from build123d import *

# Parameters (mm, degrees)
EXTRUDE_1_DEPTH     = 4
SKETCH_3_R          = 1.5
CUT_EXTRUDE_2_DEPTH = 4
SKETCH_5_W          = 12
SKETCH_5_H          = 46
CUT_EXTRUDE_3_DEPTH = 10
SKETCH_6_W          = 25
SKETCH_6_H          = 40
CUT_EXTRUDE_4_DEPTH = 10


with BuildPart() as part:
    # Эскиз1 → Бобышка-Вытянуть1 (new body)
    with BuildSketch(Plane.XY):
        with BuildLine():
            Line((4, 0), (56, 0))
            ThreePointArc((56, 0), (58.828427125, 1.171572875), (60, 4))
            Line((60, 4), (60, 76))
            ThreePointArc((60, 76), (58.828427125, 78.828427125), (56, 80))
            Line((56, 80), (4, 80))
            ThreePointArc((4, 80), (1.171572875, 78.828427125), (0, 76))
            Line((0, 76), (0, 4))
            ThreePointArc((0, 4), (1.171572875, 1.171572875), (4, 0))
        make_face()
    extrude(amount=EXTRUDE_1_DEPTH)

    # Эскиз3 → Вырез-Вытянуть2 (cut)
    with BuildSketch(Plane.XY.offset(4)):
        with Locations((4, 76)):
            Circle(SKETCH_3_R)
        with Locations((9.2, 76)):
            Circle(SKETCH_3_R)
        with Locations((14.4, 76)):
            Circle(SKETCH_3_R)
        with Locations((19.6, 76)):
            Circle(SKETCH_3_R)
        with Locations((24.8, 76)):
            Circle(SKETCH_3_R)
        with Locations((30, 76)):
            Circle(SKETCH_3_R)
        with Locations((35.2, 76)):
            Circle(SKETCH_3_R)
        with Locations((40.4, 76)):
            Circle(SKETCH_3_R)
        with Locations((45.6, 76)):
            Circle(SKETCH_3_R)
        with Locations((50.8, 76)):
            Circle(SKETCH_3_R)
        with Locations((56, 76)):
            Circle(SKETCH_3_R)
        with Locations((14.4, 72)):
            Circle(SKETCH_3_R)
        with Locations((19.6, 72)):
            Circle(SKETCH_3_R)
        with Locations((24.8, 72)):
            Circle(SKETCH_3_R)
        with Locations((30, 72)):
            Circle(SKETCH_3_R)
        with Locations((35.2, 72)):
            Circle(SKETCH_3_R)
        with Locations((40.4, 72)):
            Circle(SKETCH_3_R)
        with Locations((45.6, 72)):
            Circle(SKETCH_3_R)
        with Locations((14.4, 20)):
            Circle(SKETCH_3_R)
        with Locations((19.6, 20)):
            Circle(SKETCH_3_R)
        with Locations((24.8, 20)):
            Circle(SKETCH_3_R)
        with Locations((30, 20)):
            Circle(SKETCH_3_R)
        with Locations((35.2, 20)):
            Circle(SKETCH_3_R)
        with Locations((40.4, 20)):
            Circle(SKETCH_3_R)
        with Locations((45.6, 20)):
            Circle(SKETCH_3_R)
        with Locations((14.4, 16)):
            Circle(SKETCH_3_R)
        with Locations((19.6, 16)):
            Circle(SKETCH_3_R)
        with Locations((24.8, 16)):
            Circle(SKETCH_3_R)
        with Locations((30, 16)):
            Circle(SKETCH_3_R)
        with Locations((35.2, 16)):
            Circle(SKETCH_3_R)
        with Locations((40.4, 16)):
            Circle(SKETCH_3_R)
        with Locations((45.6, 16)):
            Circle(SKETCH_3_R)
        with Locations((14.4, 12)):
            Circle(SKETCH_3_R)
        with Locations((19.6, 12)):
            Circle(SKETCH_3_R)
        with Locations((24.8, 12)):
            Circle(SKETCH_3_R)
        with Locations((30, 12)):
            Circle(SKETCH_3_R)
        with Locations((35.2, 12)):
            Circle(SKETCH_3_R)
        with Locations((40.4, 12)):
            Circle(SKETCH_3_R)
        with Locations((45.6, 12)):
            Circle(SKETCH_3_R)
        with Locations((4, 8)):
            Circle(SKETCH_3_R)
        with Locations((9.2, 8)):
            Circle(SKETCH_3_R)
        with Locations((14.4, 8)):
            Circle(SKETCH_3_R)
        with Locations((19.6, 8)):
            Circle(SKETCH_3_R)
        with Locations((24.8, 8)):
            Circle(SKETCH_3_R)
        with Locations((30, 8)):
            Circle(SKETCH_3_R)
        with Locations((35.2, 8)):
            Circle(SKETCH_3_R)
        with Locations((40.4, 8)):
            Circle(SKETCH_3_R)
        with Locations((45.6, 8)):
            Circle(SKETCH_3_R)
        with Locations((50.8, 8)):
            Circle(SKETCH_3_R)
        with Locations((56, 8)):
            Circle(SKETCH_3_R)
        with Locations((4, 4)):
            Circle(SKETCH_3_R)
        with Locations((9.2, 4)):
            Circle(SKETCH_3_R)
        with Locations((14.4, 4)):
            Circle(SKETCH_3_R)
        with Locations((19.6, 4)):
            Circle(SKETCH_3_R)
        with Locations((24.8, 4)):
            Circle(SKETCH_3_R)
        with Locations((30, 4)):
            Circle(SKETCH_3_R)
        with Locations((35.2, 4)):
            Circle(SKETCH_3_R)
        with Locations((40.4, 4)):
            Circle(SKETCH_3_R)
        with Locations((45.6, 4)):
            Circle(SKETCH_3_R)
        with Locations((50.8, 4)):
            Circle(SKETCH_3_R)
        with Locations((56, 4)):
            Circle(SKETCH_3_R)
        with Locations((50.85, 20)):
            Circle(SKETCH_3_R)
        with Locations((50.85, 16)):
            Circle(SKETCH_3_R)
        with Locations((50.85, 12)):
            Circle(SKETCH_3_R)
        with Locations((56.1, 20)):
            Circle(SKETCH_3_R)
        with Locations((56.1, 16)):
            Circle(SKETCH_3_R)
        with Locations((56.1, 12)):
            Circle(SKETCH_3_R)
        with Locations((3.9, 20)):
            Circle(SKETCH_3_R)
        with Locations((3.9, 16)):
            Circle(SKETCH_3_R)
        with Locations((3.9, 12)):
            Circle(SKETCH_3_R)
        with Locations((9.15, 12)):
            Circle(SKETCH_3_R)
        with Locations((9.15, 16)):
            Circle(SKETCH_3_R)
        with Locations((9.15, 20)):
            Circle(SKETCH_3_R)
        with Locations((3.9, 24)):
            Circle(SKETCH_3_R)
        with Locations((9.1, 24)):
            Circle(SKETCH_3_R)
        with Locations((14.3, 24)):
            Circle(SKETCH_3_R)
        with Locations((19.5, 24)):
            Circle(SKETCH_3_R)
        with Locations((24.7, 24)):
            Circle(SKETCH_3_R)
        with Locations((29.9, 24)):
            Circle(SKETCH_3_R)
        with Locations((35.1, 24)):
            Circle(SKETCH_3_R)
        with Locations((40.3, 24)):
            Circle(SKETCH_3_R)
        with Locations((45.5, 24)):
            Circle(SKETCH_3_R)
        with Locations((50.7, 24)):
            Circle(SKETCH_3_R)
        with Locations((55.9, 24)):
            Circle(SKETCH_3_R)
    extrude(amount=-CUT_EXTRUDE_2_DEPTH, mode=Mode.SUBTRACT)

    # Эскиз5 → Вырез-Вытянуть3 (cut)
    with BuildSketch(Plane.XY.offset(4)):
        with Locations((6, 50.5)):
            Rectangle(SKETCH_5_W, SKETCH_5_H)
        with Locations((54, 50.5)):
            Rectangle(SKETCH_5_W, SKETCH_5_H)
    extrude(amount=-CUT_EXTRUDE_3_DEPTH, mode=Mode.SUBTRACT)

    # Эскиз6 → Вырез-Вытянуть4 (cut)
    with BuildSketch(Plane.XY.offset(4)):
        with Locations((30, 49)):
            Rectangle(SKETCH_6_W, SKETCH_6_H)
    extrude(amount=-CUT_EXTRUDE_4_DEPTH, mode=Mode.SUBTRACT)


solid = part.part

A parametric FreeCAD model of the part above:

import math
import FreeCAD as App
import Part
import Sketcher
Q = App.Units.Quantity

doc = App.newDocument("Part")
body = doc.addObject("PartDesign::Body", "Body")

sketch1 = body.newObject("Sketcher::SketchObject", "Sketch")
sketch1.AttachmentSupport = (doc.getObject("XY_Plane"), [""])
sketch1.MapMode = "FlatFace"
sketch1.addGeometry([
    Part.LineSegment(App.Vector(4, 0, 0), App.Vector(56, 0, 0)),
    Part.ArcOfCircle(Part.Circle(App.Vector(56, 4, 0), App.Vector(0, 0, 1), 4), math.radians(-90), math.radians(0)),
    Part.LineSegment(App.Vector(60, 4, 0), App.Vector(60, 76, 0)),
    Part.ArcOfCircle(Part.Circle(App.Vector(56, 76, 0), App.Vector(0, 0, 1), 4), math.radians(0), math.radians(90)),
    Part.LineSegment(App.Vector(56, 80, 0), App.Vector(4, 80, 0)),
    Part.ArcOfCircle(Part.Circle(App.Vector(4, 76, 0), App.Vector(0, 0, 1), 4), math.radians(90), math.radians(180)),
    Part.LineSegment(App.Vector(0, 76, 0), App.Vector(0, 4, 0)),
    Part.ArcOfCircle(Part.Circle(App.Vector(4, 4, 0), App.Vector(0, 0, 1), 4), math.radians(180), math.radians(270)),
], False)
sketch1.addConstraint([
    Sketcher.Constraint("Tangent", 0, 2, 1, 1),
    Sketcher.Constraint("Tangent", 1, 2, 2, 1),
    Sketcher.Constraint("Tangent", 2, 2, 3, 1),
    Sketcher.Constraint("Tangent", 3, 2, 4, 1),
    Sketcher.Constraint("Tangent", 4, 2, 5, 1),
    Sketcher.Constraint("Tangent", 5, 2, 6, 1),
    Sketcher.Constraint("Tangent", 6, 2, 7, 1),
    Sketcher.Constraint("Tangent", 7, 2, 0, 1),
    Sketcher.Constraint("Horizontal", 0),
    Sketcher.Constraint("Vertical", 2),
    Sketcher.Constraint("Horizontal", 4),
    Sketcher.Constraint("Vertical", 6),
    Sketcher.Constraint("Equal", 1, 3),
    Sketcher.Constraint("Equal", 3, 5),
    Sketcher.Constraint("Equal", 5, 7),
    Sketcher.Constraint("PointOnObject", 0, 2, -1),
    Sketcher.Constraint("PointOnObject", 5, 2, -2),
    Sketcher.Constraint("Radius", 1, Q("4 mm")),
    Sketcher.Constraint("DistanceX", 0, 1, 0, 2, Q("52 mm")),
    Sketcher.Constraint("DistanceY", 2, 1, 2, 2, Q("72 mm")),
])
pad1 = body.newObject("PartDesign::Pad", "Pad")
pad1.Profile = sketch1
pad1.Length = 4

sketch2 = body.newObject("Sketcher::SketchObject", "Sketch001")
sketch2.AttachmentSupport = (doc.getObject("XY_Plane"), [""])
sketch2.MapMode = "FlatFace"
sketch2.AttachmentOffset = App.Placement(App.Vector(0, 0, 4), App.Rotation())
sketch2.addGeometry([
    Part.Circle(App.Vector(4, 76, 0), App.Vector(0, 0, 1), 1.5),
    Part.Circle(App.Vector(9.2, 76, 0), App.Vector(0, 0, 1), 1.5),
    Part.Circle(App.Vector(14.4, 76, 0), App.Vector(0, 0, 1), 1.5),
    Part.Circle(App.Vector(19.6, 76, 0), App.Vector(0, 0, 1), 1.5),
    Part.Circle(App.Vector(24.8, 76, 0), App.Vector(0, 0, 1), 1.5),
    Part.Circle(App.Vector(30, 76, 0), App.Vector(0, 0, 1), 1.5),
    Part.Circle(App.Vector(35.2, 76, 0), App.Vector(0, 0, 1), 1.5),
    Part.Circle(App.Vector(40.4, 76, 0), App.Vector(0, 0, 1), 1.5),
    Part.Circle(App.Vector(45.6, 76, 0), App.Vector(0, 0, 1), 1.5),
    Part.Circle(App.Vector(50.8, 76, 0), App.Vector(0, 0, 1), 1.5),
    Part.Circle(App.Vector(56, 76, 0), App.Vector(0, 0, 1), 1.5),
    Part.Circle(App.Vector(14.4, 72, 0), App.Vector(0, 0, 1), 1.5),
    Part.Circle(App.Vector(19.6, 72, 0), App.Vector(0, 0, 1), 1.5),
    Part.Circle(App.Vector(24.8, 72, 0), App.Vector(0, 0, 1), 1.5),
    Part.Circle(App.Vector(30, 72, 0), App.Vector(0, 0, 1), 1.5),
    Part.Circle(App.Vector(35.2, 72, 0), App.Vector(0, 0, 1), 1.5),
    Part.Circle(App.Vector(40.4, 72, 0), App.Vector(0, 0, 1), 1.5),
    Part.Circle(App.Vector(45.6, 72, 0), App.Vector(0, 0, 1), 1.5),
    Part.Circle(App.Vector(14.4, 20, 0), App.Vector(0, 0, 1), 1.5),
    Part.Circle(App.Vector(19.6, 20, 0), App.Vector(0, 0, 1), 1.5),
    Part.Circle(App.Vector(24.8, 20, 0), App.Vector(0, 0, 1), 1.5),
    Part.Circle(App.Vector(30, 20, 0), App.Vector(0, 0, 1), 1.5),
    Part.Circle(App.Vector(35.2, 20, 0), App.Vector(0, 0, 1), 1.5),
    Part.Circle(App.Vector(40.4, 20, 0), App.Vector(0, 0, 1), 1.5),
    Part.Circle(App.Vector(45.6, 20, 0), App.Vector(0, 0, 1), 1.5),
    Part.Circle(App.Vector(14.4, 16, 0), App.Vector(0, 0, 1), 1.5),
    Part.Circle(App.Vector(19.6, 16, 0), App.Vector(0, 0, 1), 1.5),
    Part.Circle(App.Vector(24.8, 16, 0), App.Vector(0, 0, 1), 1.5),
    Part.Circle(App.Vector(30, 16, 0), App.Vector(0, 0, 1), 1.5),
    Part.Circle(App.Vector(35.2, 16, 0), App.Vector(0, 0, 1), 1.5),
    Part.Circle(App.Vector(40.4, 16, 0), App.Vector(0, 0, 1), 1.5),
    Part.Circle(App.Vector(45.6, 16, 0), App.Vector(0, 0, 1), 1.5),
    Part.Circle(App.Vector(14.4, 12, 0), App.Vector(0, 0, 1), 1.5),
    Part.Circle(App.Vector(19.6, 12, 0), App.Vector(0, 0, 1), 1.5),
    Part.Circle(App.Vector(24.8, 12, 0), App.Vector(0, 0, 1), 1.5),
    Part.Circle(App.Vector(30, 12, 0), App.Vector(0, 0, 1), 1.5),
    Part.Circle(App.Vector(35.2, 12, 0), App.Vector(0, 0, 1), 1.5),
    Part.Circle(App.Vector(40.4, 12, 0), App.Vector(0, 0, 1), 1.5),
    Part.Circle(App.Vector(45.6, 12, 0), App.Vector(0, 0, 1), 1.5),
    Part.Circle(App.Vector(4, 8, 0), App.Vector(0, 0, 1), 1.5),
    Part.Circle(App.Vector(9.2, 8, 0), App.Vector(0, 0, 1), 1.5),
    Part.Circle(App.Vector(14.4, 8, 0), App.Vector(0, 0, 1), 1.5),
    Part.Circle(App.Vector(19.6, 8, 0), App.Vector(0, 0, 1), 1.5),
    Part.Circle(App.Vector(24.8, 8, 0), App.Vector(0, 0, 1), 1.5),
    Part.Circle(App.Vector(30, 8, 0), App.Vector(0, 0, 1), 1.5),
    Part.Circle(App.Vector(35.2, 8, 0), App.Vector(0, 0, 1), 1.5),
    Part.Circle(App.Vector(40.4, 8, 0), App.Vector(0, 0, 1), 1.5),
    Part.Circle(App.Vector(45.6, 8, 0), App.Vector(0, 0, 1), 1.5),
    Part.Circle(App.Vector(50.8, 8, 0), App.Vector(0, 0, 1), 1.5),
    Part.Circle(App.Vector(56, 8, 0), App.Vector(0, 0, 1), 1.5),
    Part.Circle(App.Vector(4, 4, 0), App.Vector(0, 0, 1), 1.5),
    Part.Circle(App.Vector(9.2, 4, 0), App.Vector(0, 0, 1), 1.5),
    Part.Circle(App.Vector(14.4, 4, 0), App.Vector(0, 0, 1), 1.5),
    Part.Circle(App.Vector(19.6, 4, 0), App.Vector(0, 0, 1), 1.5),
    Part.Circle(App.Vector(24.8, 4, 0), App.Vector(0, 0, 1), 1.5),
    Part.Circle(App.Vector(30, 4, 0), App.Vector(0, 0, 1), 1.5),
    Part.Circle(App.Vector(35.2, 4, 0), App.Vector(0, 0, 1), 1.5),
    Part.Circle(App.Vector(40.4, 4, 0), App.Vector(0, 0, 1), 1.5),
    Part.Circle(App.Vector(45.6, 4, 0), App.Vector(0, 0, 1), 1.5),
    Part.Circle(App.Vector(50.8, 4, 0), App.Vector(0, 0, 1), 1.5),
    Part.Circle(App.Vector(56, 4, 0), App.Vector(0, 0, 1), 1.5),
    Part.Circle(App.Vector(50.9, 20, 0), App.Vector(0, 0, 1), 1.5),
    Part.Circle(App.Vector(50.9, 16, 0), App.Vector(0, 0, 1), 1.5),
    Part.Circle(App.Vector(50.9, 12, 0), App.Vector(0, 0, 1), 1.5),
    Part.Circle(App.Vector(56.1, 20, 0), App.Vector(0, 0, 1), 1.5),
    Part.Circle(App.Vector(56.1, 16, 0), App.Vector(0, 0, 1), 1.5),
    Part.Circle(App.Vector(56.1, 12, 0), App.Vector(0, 0, 1), 1.5),
    Part.Circle(App.Vector(3.9, 20, 0), App.Vector(0, 0, 1), 1.5),
    Part.Circle(App.Vector(3.9, 16, 0), App.Vector(0, 0, 1), 1.5),
    Part.Circle(App.Vector(3.9, 12, 0), App.Vector(0, 0, 1), 1.5),
    Part.Circle(App.Vector(9.2, 12, 0), App.Vector(0, 0, 1), 1.5),
    Part.Circle(App.Vector(9.2, 16, 0), App.Vector(0, 0, 1), 1.5),
    Part.Circle(App.Vector(9.2, 20, 0), App.Vector(0, 0, 1), 1.5),
    Part.Circle(App.Vector(3.9, 24, 0), App.Vector(0, 0, 1), 1.5),
    Part.Circle(App.Vector(9.1, 24, 0), App.Vector(0, 0, 1), 1.5),
    Part.Circle(App.Vector(14.3, 24, 0), App.Vector(0, 0, 1), 1.5),
    Part.Circle(App.Vector(19.5, 24, 0), App.Vector(0, 0, 1), 1.5),
    Part.Circle(App.Vector(24.7, 24, 0), App.Vector(0, 0, 1), 1.5),
    Part.Circle(App.Vector(29.9, 24, 0), App.Vector(0, 0, 1), 1.5),
    Part.Circle(App.Vector(35.1, 24, 0), App.Vector(0, 0, 1), 1.5),
    Part.Circle(App.Vector(40.3, 24, 0), App.Vector(0, 0, 1), 1.5),
    Part.Circle(App.Vector(45.5, 24, 0), App.Vector(0, 0, 1), 1.5),
    Part.Circle(App.Vector(50.7, 24, 0), App.Vector(0, 0, 1), 1.5),
    Part.Circle(App.Vector(55.9, 24, 0), App.Vector(0, 0, 1), 1.5),
], False)
sketch2.addConstraint([
    Sketcher.Constraint("Equal", 0, 1),
    Sketcher.Constraint("Equal", 1, 2),
    Sketcher.Constraint("Equal", 2, 3),
    Sketcher.Constraint("Equal", 3, 4),
    Sketcher.Constraint("Equal", 4, 5),
    Sketcher.Constraint("Equal", 5, 6),
    Sketcher.Constraint("Equal", 6, 7),
    Sketcher.Constraint("Equal", 7, 8),
    Sketcher.Constraint("Equal", 8, 9),
    Sketcher.Constraint("Equal", 9, 10),
    Sketcher.Constraint("Equal", 10, 11),
    Sketcher.Constraint("Equal", 11, 12),
    Sketcher.Constraint("Equal", 12, 13),
    Sketcher.Constraint("Equal", 13, 14),
    Sketcher.Constraint("Equal", 14, 15),
    Sketcher.Constraint("Equal", 15, 16),
    Sketcher.Constraint("Equal", 16, 17),
    Sketcher.Constraint("Equal", 17, 18),
    Sketcher.Constraint("Equal", 18, 19),
    Sketcher.Constraint("Equal", 19, 20),
    Sketcher.Constraint("Equal", 20, 21),
    Sketcher.Constraint("Equal", 21, 22),
    Sketcher.Constraint("Equal", 22, 23),
    Sketcher.Constraint("Equal", 23, 24),
    Sketcher.Constraint("Equal", 24, 25),
    Sketcher.Constraint("Equal", 25, 26),
    Sketcher.Constraint("Equal", 26, 27),
    Sketcher.Constraint("Equal", 27, 28),
    Sketcher.Constraint("Equal", 28, 29),
    Sketcher.Constraint("Equal", 29, 30),
    Sketcher.Constraint("Equal", 30, 31),
    Sketcher.Constraint("Equal", 31, 32),
    Sketcher.Constraint("Equal", 32, 33),
    Sketcher.Constraint("Equal", 33, 34),
    Sketcher.Constraint("Equal", 34, 35),
    Sketcher.Constraint("Equal", 35, 36),
    Sketcher.Constraint("Equal", 36, 37),
    Sketcher.Constraint("Equal", 37, 38),
    Sketcher.Constraint("Equal", 38, 39),
    Sketcher.Constraint("Equal", 39, 40),
    Sketcher.Constraint("Equal", 40, 41),
    Sketcher.Constraint("Equal", 41, 42),
    Sketcher.Constraint("Equal", 42, 43),
    Sketcher.Constraint("Equal", 43, 44),
    Sketcher.Constraint("Equal", 44, 45),
    Sketcher.Constraint("Equal", 45, 46),
    Sketcher.Constraint("Equal", 46, 47),
    Sketcher.Constraint("Equal", 47, 48),
    Sketcher.Constraint("Equal", 48, 49),
    Sketcher.Constraint("Equal", 49, 50),
    Sketcher.Constraint("Equal", 50, 51),
    Sketcher.Constraint("Equal", 51, 52),
    Sketcher.Constraint("Equal", 52, 53),
    Sketcher.Constraint("Equal", 53, 54),
    Sketcher.Constraint("Equal", 54, 55),
    Sketcher.Constraint("Equal", 55, 56),
    Sketcher.Constraint("Equal", 56, 57),
    Sketcher.Constraint("Equal", 57, 58),
    Sketcher.Constraint("Equal", 58, 59),
    Sketcher.Constraint("Equal", 59, 60),
    Sketcher.Constraint("Equal", 60, 61),
    Sketcher.Constraint("Equal", 61, 62),
    Sketcher.Constraint("Equal", 62, 63),
    Sketcher.Constraint("Equal", 63, 64),
    Sketcher.Constraint("Equal", 64, 65),
    Sketcher.Constraint("Equal", 65, 66),
    Sketcher.Constraint("Equal", 66, 67),
    Sketcher.Constraint("Equal", 67, 68),
    Sketcher.Constraint("Equal", 68, 69),
    Sketcher.Constraint("Equal", 69, 70),
    Sketcher.Constraint("Equal", 70, 71),
    Sketcher.Constraint("Equal", 71, 72),
    Sketcher.Constraint("Equal", 72, 73),
    Sketcher.Constraint("Equal", 73, 74),
    Sketcher.Constraint("Equal", 74, 75),
    Sketcher.Constraint("Equal", 75, 76),
    Sketcher.Constraint("Equal", 76, 77),
    Sketcher.Constraint("Equal", 77, 78),
    Sketcher.Constraint("Equal", 78, 79),
    Sketcher.Constraint("Equal", 79, 80),
    Sketcher.Constraint("Equal", 80, 81),
    Sketcher.Constraint("Equal", 81, 82),
    Sketcher.Constraint("Equal", 82, 83),
    Sketcher.Constraint("Horizontal", 0, 3, 1, 3),
    Sketcher.Constraint("Horizontal", 1, 3, 2, 3),
    Sketcher.Constraint("Horizontal", 2, 3, 3, 3),
    Sketcher.Constraint("Horizontal", 3, 3, 4, 3),
    Sketcher.Constraint("Horizontal", 4, 3, 5, 3),
    Sketcher.Constraint("Horizontal", 5, 3, 6, 3),
    Sketcher.Constraint("Horizontal", 6, 3, 7, 3),
    Sketcher.Constraint("Horizontal", 7, 3, 8, 3),
    Sketcher.Constraint("Horizontal", 8, 3, 9, 3),
    Sketcher.Constraint("Horizontal", 9, 3, 10, 3),
    Sketcher.Constraint("Horizontal", 11, 3, 12, 3),
    Sketcher.Constraint("Horizontal", 12, 3, 13, 3),
    Sketcher.Constraint("Horizontal", 13, 3, 14, 3),
    Sketcher.Constraint("Horizontal", 14, 3, 15, 3),
    Sketcher.Constraint("Horizontal", 15, 3, 16, 3),
    Sketcher.Constraint("Horizontal", 16, 3, 17, 3),
    Sketcher.Constraint("Horizontal", 18, 3, 19, 3),
    Sketcher.Constraint("Horizontal", 19, 3, 20, 3),
    Sketcher.Constraint("Horizontal", 20, 3, 21, 3),
    Sketcher.Constraint("Horizontal", 21, 3, 22, 3),
    Sketcher.Constraint("Horizontal", 22, 3, 23, 3),
    Sketcher.Constraint("Horizontal", 23, 3, 24, 3),
    Sketcher.Constraint("Horizontal", 25, 3, 26, 3),
    Sketcher.Constraint("Horizontal", 26, 3, 27, 3),
    Sketcher.Constraint("Horizontal", 27, 3, 28, 3),
    Sketcher.Constraint("Horizontal", 28, 3, 29, 3),
    Sketcher.Constraint("Horizontal", 29, 3, 30, 3),
    Sketcher.Constraint("Horizontal", 30, 3, 31, 3),
    Sketcher.Constraint("Horizontal", 32, 3, 33, 3),
    Sketcher.Constraint("Horizontal", 33, 3, 34, 3),
    Sketcher.Constraint("Horizontal", 34, 3, 35, 3),
    Sketcher.Constraint("Horizontal", 35, 3, 36, 3),
    Sketcher.Constraint("Horizontal", 36, 3, 37, 3),
    Sketcher.Constraint("Horizontal", 37, 3, 38, 3),
    Sketcher.Constraint("Horizontal", 39, 3, 40, 3),
    Sketcher.Constraint("Horizontal", 40, 3, 41, 3),
    Sketcher.Constraint("Horizontal", 41, 3, 42, 3),
    Sketcher.Constraint("Horizontal", 42, 3, 43, 3),
    Sketcher.Constraint("Horizontal", 43, 3, 44, 3),
    Sketcher.Constraint("Horizontal", 44, 3, 45, 3),
    Sketcher.Constraint("Horizontal", 45, 3, 46, 3),
    Sketcher.Constraint("Horizontal", 46, 3, 47, 3),
    Sketcher.Constraint("Horizontal", 47, 3, 48, 3),
    Sketcher.Constraint("Horizontal", 48, 3, 49, 3),
    Sketcher.Constraint("Horizontal", 50, 3, 51, 3),
    Sketcher.Constraint("Horizontal", 51, 3, 52, 3),
    Sketcher.Constraint("Horizontal", 52, 3, 53, 3),
    Sketcher.Constraint("Horizontal", 53, 3, 54, 3),
    Sketcher.Constraint("Horizontal", 54, 3, 55, 3),
    Sketcher.Constraint("Horizontal", 55, 3, 56, 3),
    Sketcher.Constraint("Horizontal", 56, 3, 57, 3),
    Sketcher.Constraint("Horizontal", 57, 3, 58, 3),
    Sketcher.Constraint("Horizontal", 58, 3, 59, 3),
    Sketcher.Constraint("Horizontal", 59, 3, 60, 3),
    Sketcher.Constraint("Horizontal", 24, 3, 61, 3),
    Sketcher.Constraint("Horizontal", 31, 3, 62, 3),
    Sketcher.Constraint("Horizontal", 38, 3, 63, 3),
    Sketcher.Constraint("Horizontal", 61, 3, 64, 3),
    Sketcher.Constraint("Horizontal", 62, 3, 65, 3),
    Sketcher.Constraint("Horizontal", 63, 3, 66, 3),
    Sketcher.Constraint("Horizontal", 64, 3, 67, 3),
    Sketcher.Constraint("Horizontal", 65, 3, 68, 3),
    Sketcher.Constraint("Horizontal", 66, 3, 69, 3),
    Sketcher.Constraint("Horizontal", 69, 3, 70, 3),
    Sketcher.Constraint("Horizontal", 68, 3, 71, 3),
    Sketcher.Constraint("Horizontal", 67, 3, 72, 3),
    Sketcher.Constraint("Horizontal", 73, 3, 74, 3),
    Sketcher.Constraint("Horizontal", 74, 3, 75, 3),
    Sketcher.Constraint("Horizontal", 75, 3, 76, 3),
    Sketcher.Constraint("Horizontal", 76, 3, 77, 3),
    Sketcher.Constraint("Horizontal", 77, 3, 78, 3),
    Sketcher.Constraint("Horizontal", 78, 3, 79, 3),
    Sketcher.Constraint("Horizontal", 79, 3, 80, 3),
    Sketcher.Constraint("Horizontal", 80, 3, 81, 3),
    Sketcher.Constraint("Horizontal", 81, 3, 82, 3),
    Sketcher.Constraint("Horizontal", 82, 3, 83, 3),
    Sketcher.Constraint("Vertical", 2, 3, 11, 3),
    Sketcher.Constraint("Vertical", 3, 3, 12, 3),
    Sketcher.Constraint("Vertical", 4, 3, 13, 3),
    Sketcher.Constraint("Vertical", 5, 3, 14, 3),
    Sketcher.Constraint("Vertical", 6, 3, 15, 3),
    Sketcher.Constraint("Vertical", 7, 3, 16, 3),
    Sketcher.Constraint("Vertical", 8, 3, 17, 3),
    Sketcher.Constraint("Vertical", 11, 3, 18, 3),
    Sketcher.Constraint("Vertical", 12, 3, 19, 3),
    Sketcher.Constraint("Vertical", 13, 3, 20, 3),
    Sketcher.Constraint("Vertical", 14, 3, 21, 3),
    Sketcher.Constraint("Vertical", 15, 3, 22, 3),
    Sketcher.Constraint("Vertical", 16, 3, 23, 3),
    Sketcher.Constraint("Vertical", 17, 3, 24, 3),
    Sketcher.Constraint("Vertical", 18, 3, 25, 3),
    Sketcher.Constraint("Vertical", 19, 3, 26, 3),
    Sketcher.Constraint("Vertical", 20, 3, 27, 3),
    Sketcher.Constraint("Vertical", 21, 3, 28, 3),
    Sketcher.Constraint("Vertical", 22, 3, 29, 3),
    Sketcher.Constraint("Vertical", 23, 3, 30, 3),
    Sketcher.Constraint("Vertical", 24, 3, 31, 3),
    Sketcher.Constraint("Vertical", 25, 3, 32, 3),
    Sketcher.Constraint("Vertical", 26, 3, 33, 3),
    Sketcher.Constraint("Vertical", 27, 3, 34, 3),
    Sketcher.Constraint("Vertical", 28, 3, 35, 3),
    Sketcher.Constraint("Vertical", 29, 3, 36, 3),
    Sketcher.Constraint("Vertical", 30, 3, 37, 3),
    Sketcher.Constraint("Vertical", 31, 3, 38, 3),
    Sketcher.Constraint("Vertical", 0, 3, 39, 3),
    Sketcher.Constraint("Vertical", 1, 3, 40, 3),
    Sketcher.Constraint("Vertical", 32, 3, 41, 3),
    Sketcher.Constraint("Vertical", 33, 3, 42, 3),
    Sketcher.Constraint("Vertical", 34, 3, 43, 3),
    Sketcher.Constraint("Vertical", 35, 3, 44, 3),
    Sketcher.Constraint("Vertical", 36, 3, 45, 3),
    Sketcher.Constraint("Vertical", 37, 3, 46, 3),
    Sketcher.Constraint("Vertical", 38, 3, 47, 3),
    Sketcher.Constraint("Vertical", 9, 3, 48, 3),
    Sketcher.Constraint("Vertical", 10, 3, 49, 3),
    Sketcher.Constraint("Vertical", 39, 3, 50, 3),
    Sketcher.Constraint("Vertical", 40, 3, 51, 3),
    Sketcher.Constraint("Vertical", 41, 3, 52, 3),
    Sketcher.Constraint("Vertical", 42, 3, 53, 3),
    Sketcher.Constraint("Vertical", 43, 3, 54, 3),
    Sketcher.Constraint("Vertical", 44, 3, 55, 3),
    Sketcher.Constraint("Vertical", 45, 3, 56, 3),
    Sketcher.Constraint("Vertical", 46, 3, 57, 3),
    Sketcher.Constraint("Vertical", 47, 3, 58, 3),
    Sketcher.Constraint("Vertical", 48, 3, 59, 3),
    Sketcher.Constraint("Vertical", 49, 3, 60, 3),
    Sketcher.Constraint("Vertical", 61, 3, 62, 3),
    Sketcher.Constraint("Vertical", 62, 3, 63, 3),
    Sketcher.Constraint("Vertical", 64, 3, 65, 3),
    Sketcher.Constraint("Vertical", 65, 3, 66, 3),
    Sketcher.Constraint("Vertical", 67, 3, 68, 3),
    Sketcher.Constraint("Vertical", 68, 3, 69, 3),
    Sketcher.Constraint("Vertical", 70, 3, 71, 3),
    Sketcher.Constraint("Vertical", 71, 3, 72, 3),
    Sketcher.Constraint("Vertical", 69, 3, 73, 3),
    Sketcher.Constraint("Diameter", 0, Q("3 mm")),
    Sketcher.Constraint("DistanceX", -1, 1, 0, 3, Q("4 mm")),
    Sketcher.Constraint("DistanceY", -1, 1, 0, 3, Q("76 mm")),
    Sketcher.Constraint("DistanceX", -1, 1, 5, 3, Q("30 mm")),
    Sketcher.Constraint("DistanceX", -1, 1, 10, 3, Q("56 mm")),
    Sketcher.Constraint("DistanceY", -1, 1, 11, 3, Q("72 mm")),
    Sketcher.Constraint("DistanceY", -1, 1, 18, 3, Q("20 mm")),
    Sketcher.Constraint("DistanceY", -1, 1, 25, 3, Q("16 mm")),
    Sketcher.Constraint("DistanceY", -1, 1, 32, 3, Q("12 mm")),
    Sketcher.Constraint("DistanceY", -1, 1, 39, 3, Q("8 mm")),
    Sketcher.Constraint("DistanceY", -1, 1, 50, 3, Q("4 mm")),
    Sketcher.Constraint("DistanceY", -1, 1, 73, 3, Q("24 mm")),
    Sketcher.Constraint("DistanceX", -1, 1, 1, 3, Q("9.2 mm")),
    Sketcher.Constraint("DistanceX", -1, 1, 2, 3, Q("14.4 mm")),
    Sketcher.Constraint("DistanceX", -1, 1, 3, 3, Q("19.6 mm")),
    Sketcher.Constraint("DistanceX", -1, 1, 4, 3, Q("24.8 mm")),
    Sketcher.Constraint("DistanceX", -1, 1, 6, 3, Q("35.2 mm")),
    Sketcher.Constraint("DistanceX", -1, 1, 7, 3, Q("40.4 mm")),
    Sketcher.Constraint("DistanceX", -1, 1, 8, 3, Q("45.6 mm")),
    Sketcher.Constraint("DistanceX", -1, 1, 9, 3, Q("50.8 mm")),
    Sketcher.Constraint("DistanceX", -1, 1, 64, 3, Q("56.1 mm")),
    Sketcher.Constraint("DistanceX", -1, 1, 67, 3, Q("3.9 mm")),
    Sketcher.Constraint("DistanceX", -1, 1, 74, 3, Q("9.1 mm")),
    Sketcher.Constraint("DistanceX", -1, 1, 75, 3, Q("14.3 mm")),
    Sketcher.Constraint("DistanceX", -1, 1, 76, 3, Q("19.5 mm")),
    Sketcher.Constraint("DistanceX", -1, 1, 77, 3, Q("24.7 mm")),
    Sketcher.Constraint("DistanceX", -1, 1, 78, 3, Q("29.9 mm")),
    Sketcher.Constraint("DistanceX", -1, 1, 79, 3, Q("35.1 mm")),
    Sketcher.Constraint("DistanceX", -1, 1, 80, 3, Q("40.3 mm")),
    Sketcher.Constraint("DistanceX", -1, 1, 81, 3, Q("45.5 mm")),
    Sketcher.Constraint("DistanceX", -1, 1, 82, 3, Q("50.7 mm")),
    Sketcher.Constraint("DistanceX", -1, 1, 83, 3, Q("55.9 mm")),
    Sketcher.Constraint("DistanceX", -1, 1, 61, 3, Q("50.85 mm")),
    Sketcher.Constraint("DistanceX", -1, 1, 70, 3, Q("9.15 mm")),
])
pocket1 = body.newObject("PartDesign::Pocket", "Pocket")
pocket1.Profile = sketch2
pocket1.Length = 4

sketch3 = body.newObject("Sketcher::SketchObject", "Sketch002")
sketch3.AttachmentSupport = (doc.getObject("XY_Plane"), [""])
sketch3.MapMode = "FlatFace"
sketch3.AttachmentOffset = App.Placement(App.Vector(0, 0, 4), App.Rotation())
sketch3.addGeometry([
    Part.LineSegment(App.Vector(0, 74, 0), App.Vector(0, 28, 0)),
    Part.LineSegment(App.Vector(0, 28, 0), App.Vector(12, 28, 0)),
    Part.LineSegment(App.Vector(12, 28, 0), App.Vector(12, 74, 0)),
    Part.LineSegment(App.Vector(12, 74, 0), App.Vector(0, 74, 0)),
    Part.LineSegment(App.Vector(48, 74, 0), App.Vector(48, 28, 0)),
    Part.LineSegment(App.Vector(48, 28, 0), App.Vector(60, 28, 0)),
    Part.LineSegment(App.Vector(60, 28, 0), App.Vector(60, 74, 0)),
    Part.LineSegment(App.Vector(60, 74, 0), App.Vector(48, 74, 0)),
], False)
sketch3.addConstraint([
    Sketcher.Constraint("Coincident", 0, 2, 1, 1),
    Sketcher.Constraint("Coincident", 1, 2, 2, 1),
    Sketcher.Constraint("Coincident", 2, 2, 3, 1),
    Sketcher.Constraint("Coincident", 3, 2, 0, 1),
    Sketcher.Constraint("Coincident", 4, 2, 5, 1),
    Sketcher.Constraint("Coincident", 5, 2, 6, 1),
    Sketcher.Constraint("Coincident", 6, 2, 7, 1),
    Sketcher.Constraint("Coincident", 7, 2, 4, 1),
    Sketcher.Constraint("Vertical", 0),
    Sketcher.Constraint("Horizontal", 1),
    Sketcher.Constraint("Vertical", 2),
    Sketcher.Constraint("Horizontal", 3),
    Sketcher.Constraint("Vertical", 4),
    Sketcher.Constraint("Horizontal", 5),
    Sketcher.Constraint("Vertical", 6),
    Sketcher.Constraint("Horizontal", 7),
    Sketcher.Constraint("PointOnObject", 0, 2, -2),
    Sketcher.Constraint("Horizontal", 1, 2, 4, 2),
    Sketcher.Constraint("Horizontal", 3, 2, 6, 2),
    Sketcher.Constraint("Equal", 3, 5),
    Sketcher.Constraint("DistanceX", 1, 1, 1, 2, Q("12 mm")),
    Sketcher.Constraint("DistanceY", 0, 2, 0, 1, Q("46 mm")),
    Sketcher.Constraint("DistanceX", -1, 1, 4, 2, Q("48 mm")),
    Sketcher.Constraint("DistanceY", -1, 1, 0, 2, Q("27.5 mm")),
])
pocket2 = body.newObject("PartDesign::Pocket", "Pocket001")
pocket2.Profile = sketch3
pocket2.Length = 10

sketch4 = body.newObject("Sketcher::SketchObject", "Sketch003")
sketch4.AttachmentSupport = (doc.getObject("XY_Plane"), [""])
sketch4.MapMode = "FlatFace"
sketch4.AttachmentOffset = App.Placement(App.Vector(0, 0, 4), App.Rotation())
sketch4.addGeometry([
    Part.LineSegment(App.Vector(18, 69, 0), App.Vector(18, 29, 0)),
    Part.LineSegment(App.Vector(18, 29, 0), App.Vector(42, 29, 0)),
    Part.LineSegment(App.Vector(42, 29, 0), App.Vector(42, 69, 0)),
    Part.LineSegment(App.Vector(42, 69, 0), App.Vector(18, 69, 0)),
], False)
sketch4.addConstraint([
    Sketcher.Constraint("Coincident", 0, 2, 1, 1),
    Sketcher.Constraint("Coincident", 1, 2, 2, 1),
    Sketcher.Constraint("Coincident", 2, 2, 3, 1),
    Sketcher.Constraint("Coincident", 3, 2, 0, 1),
    Sketcher.Constraint("Vertical", 0),
    Sketcher.Constraint("Horizontal", 1),
    Sketcher.Constraint("Vertical", 2),
    Sketcher.Constraint("Horizontal", 3),
    Sketcher.Constraint("DistanceX", 1, 1, 1, 2, Q("25 mm")),
    Sketcher.Constraint("DistanceY", 0, 2, 0, 1, Q("40 mm")),
    Sketcher.Constraint("DistanceY", -1, 1, 0, 2, Q("29 mm")),
    Sketcher.Constraint("DistanceX", -1, 1, 0, 2, Q("17.5 mm")),
])
pocket3 = body.newObject("PartDesign::Pocket", "Pocket002")
pocket3.Profile = sketch4
pocket3.Length = 10

doc.recompute()
